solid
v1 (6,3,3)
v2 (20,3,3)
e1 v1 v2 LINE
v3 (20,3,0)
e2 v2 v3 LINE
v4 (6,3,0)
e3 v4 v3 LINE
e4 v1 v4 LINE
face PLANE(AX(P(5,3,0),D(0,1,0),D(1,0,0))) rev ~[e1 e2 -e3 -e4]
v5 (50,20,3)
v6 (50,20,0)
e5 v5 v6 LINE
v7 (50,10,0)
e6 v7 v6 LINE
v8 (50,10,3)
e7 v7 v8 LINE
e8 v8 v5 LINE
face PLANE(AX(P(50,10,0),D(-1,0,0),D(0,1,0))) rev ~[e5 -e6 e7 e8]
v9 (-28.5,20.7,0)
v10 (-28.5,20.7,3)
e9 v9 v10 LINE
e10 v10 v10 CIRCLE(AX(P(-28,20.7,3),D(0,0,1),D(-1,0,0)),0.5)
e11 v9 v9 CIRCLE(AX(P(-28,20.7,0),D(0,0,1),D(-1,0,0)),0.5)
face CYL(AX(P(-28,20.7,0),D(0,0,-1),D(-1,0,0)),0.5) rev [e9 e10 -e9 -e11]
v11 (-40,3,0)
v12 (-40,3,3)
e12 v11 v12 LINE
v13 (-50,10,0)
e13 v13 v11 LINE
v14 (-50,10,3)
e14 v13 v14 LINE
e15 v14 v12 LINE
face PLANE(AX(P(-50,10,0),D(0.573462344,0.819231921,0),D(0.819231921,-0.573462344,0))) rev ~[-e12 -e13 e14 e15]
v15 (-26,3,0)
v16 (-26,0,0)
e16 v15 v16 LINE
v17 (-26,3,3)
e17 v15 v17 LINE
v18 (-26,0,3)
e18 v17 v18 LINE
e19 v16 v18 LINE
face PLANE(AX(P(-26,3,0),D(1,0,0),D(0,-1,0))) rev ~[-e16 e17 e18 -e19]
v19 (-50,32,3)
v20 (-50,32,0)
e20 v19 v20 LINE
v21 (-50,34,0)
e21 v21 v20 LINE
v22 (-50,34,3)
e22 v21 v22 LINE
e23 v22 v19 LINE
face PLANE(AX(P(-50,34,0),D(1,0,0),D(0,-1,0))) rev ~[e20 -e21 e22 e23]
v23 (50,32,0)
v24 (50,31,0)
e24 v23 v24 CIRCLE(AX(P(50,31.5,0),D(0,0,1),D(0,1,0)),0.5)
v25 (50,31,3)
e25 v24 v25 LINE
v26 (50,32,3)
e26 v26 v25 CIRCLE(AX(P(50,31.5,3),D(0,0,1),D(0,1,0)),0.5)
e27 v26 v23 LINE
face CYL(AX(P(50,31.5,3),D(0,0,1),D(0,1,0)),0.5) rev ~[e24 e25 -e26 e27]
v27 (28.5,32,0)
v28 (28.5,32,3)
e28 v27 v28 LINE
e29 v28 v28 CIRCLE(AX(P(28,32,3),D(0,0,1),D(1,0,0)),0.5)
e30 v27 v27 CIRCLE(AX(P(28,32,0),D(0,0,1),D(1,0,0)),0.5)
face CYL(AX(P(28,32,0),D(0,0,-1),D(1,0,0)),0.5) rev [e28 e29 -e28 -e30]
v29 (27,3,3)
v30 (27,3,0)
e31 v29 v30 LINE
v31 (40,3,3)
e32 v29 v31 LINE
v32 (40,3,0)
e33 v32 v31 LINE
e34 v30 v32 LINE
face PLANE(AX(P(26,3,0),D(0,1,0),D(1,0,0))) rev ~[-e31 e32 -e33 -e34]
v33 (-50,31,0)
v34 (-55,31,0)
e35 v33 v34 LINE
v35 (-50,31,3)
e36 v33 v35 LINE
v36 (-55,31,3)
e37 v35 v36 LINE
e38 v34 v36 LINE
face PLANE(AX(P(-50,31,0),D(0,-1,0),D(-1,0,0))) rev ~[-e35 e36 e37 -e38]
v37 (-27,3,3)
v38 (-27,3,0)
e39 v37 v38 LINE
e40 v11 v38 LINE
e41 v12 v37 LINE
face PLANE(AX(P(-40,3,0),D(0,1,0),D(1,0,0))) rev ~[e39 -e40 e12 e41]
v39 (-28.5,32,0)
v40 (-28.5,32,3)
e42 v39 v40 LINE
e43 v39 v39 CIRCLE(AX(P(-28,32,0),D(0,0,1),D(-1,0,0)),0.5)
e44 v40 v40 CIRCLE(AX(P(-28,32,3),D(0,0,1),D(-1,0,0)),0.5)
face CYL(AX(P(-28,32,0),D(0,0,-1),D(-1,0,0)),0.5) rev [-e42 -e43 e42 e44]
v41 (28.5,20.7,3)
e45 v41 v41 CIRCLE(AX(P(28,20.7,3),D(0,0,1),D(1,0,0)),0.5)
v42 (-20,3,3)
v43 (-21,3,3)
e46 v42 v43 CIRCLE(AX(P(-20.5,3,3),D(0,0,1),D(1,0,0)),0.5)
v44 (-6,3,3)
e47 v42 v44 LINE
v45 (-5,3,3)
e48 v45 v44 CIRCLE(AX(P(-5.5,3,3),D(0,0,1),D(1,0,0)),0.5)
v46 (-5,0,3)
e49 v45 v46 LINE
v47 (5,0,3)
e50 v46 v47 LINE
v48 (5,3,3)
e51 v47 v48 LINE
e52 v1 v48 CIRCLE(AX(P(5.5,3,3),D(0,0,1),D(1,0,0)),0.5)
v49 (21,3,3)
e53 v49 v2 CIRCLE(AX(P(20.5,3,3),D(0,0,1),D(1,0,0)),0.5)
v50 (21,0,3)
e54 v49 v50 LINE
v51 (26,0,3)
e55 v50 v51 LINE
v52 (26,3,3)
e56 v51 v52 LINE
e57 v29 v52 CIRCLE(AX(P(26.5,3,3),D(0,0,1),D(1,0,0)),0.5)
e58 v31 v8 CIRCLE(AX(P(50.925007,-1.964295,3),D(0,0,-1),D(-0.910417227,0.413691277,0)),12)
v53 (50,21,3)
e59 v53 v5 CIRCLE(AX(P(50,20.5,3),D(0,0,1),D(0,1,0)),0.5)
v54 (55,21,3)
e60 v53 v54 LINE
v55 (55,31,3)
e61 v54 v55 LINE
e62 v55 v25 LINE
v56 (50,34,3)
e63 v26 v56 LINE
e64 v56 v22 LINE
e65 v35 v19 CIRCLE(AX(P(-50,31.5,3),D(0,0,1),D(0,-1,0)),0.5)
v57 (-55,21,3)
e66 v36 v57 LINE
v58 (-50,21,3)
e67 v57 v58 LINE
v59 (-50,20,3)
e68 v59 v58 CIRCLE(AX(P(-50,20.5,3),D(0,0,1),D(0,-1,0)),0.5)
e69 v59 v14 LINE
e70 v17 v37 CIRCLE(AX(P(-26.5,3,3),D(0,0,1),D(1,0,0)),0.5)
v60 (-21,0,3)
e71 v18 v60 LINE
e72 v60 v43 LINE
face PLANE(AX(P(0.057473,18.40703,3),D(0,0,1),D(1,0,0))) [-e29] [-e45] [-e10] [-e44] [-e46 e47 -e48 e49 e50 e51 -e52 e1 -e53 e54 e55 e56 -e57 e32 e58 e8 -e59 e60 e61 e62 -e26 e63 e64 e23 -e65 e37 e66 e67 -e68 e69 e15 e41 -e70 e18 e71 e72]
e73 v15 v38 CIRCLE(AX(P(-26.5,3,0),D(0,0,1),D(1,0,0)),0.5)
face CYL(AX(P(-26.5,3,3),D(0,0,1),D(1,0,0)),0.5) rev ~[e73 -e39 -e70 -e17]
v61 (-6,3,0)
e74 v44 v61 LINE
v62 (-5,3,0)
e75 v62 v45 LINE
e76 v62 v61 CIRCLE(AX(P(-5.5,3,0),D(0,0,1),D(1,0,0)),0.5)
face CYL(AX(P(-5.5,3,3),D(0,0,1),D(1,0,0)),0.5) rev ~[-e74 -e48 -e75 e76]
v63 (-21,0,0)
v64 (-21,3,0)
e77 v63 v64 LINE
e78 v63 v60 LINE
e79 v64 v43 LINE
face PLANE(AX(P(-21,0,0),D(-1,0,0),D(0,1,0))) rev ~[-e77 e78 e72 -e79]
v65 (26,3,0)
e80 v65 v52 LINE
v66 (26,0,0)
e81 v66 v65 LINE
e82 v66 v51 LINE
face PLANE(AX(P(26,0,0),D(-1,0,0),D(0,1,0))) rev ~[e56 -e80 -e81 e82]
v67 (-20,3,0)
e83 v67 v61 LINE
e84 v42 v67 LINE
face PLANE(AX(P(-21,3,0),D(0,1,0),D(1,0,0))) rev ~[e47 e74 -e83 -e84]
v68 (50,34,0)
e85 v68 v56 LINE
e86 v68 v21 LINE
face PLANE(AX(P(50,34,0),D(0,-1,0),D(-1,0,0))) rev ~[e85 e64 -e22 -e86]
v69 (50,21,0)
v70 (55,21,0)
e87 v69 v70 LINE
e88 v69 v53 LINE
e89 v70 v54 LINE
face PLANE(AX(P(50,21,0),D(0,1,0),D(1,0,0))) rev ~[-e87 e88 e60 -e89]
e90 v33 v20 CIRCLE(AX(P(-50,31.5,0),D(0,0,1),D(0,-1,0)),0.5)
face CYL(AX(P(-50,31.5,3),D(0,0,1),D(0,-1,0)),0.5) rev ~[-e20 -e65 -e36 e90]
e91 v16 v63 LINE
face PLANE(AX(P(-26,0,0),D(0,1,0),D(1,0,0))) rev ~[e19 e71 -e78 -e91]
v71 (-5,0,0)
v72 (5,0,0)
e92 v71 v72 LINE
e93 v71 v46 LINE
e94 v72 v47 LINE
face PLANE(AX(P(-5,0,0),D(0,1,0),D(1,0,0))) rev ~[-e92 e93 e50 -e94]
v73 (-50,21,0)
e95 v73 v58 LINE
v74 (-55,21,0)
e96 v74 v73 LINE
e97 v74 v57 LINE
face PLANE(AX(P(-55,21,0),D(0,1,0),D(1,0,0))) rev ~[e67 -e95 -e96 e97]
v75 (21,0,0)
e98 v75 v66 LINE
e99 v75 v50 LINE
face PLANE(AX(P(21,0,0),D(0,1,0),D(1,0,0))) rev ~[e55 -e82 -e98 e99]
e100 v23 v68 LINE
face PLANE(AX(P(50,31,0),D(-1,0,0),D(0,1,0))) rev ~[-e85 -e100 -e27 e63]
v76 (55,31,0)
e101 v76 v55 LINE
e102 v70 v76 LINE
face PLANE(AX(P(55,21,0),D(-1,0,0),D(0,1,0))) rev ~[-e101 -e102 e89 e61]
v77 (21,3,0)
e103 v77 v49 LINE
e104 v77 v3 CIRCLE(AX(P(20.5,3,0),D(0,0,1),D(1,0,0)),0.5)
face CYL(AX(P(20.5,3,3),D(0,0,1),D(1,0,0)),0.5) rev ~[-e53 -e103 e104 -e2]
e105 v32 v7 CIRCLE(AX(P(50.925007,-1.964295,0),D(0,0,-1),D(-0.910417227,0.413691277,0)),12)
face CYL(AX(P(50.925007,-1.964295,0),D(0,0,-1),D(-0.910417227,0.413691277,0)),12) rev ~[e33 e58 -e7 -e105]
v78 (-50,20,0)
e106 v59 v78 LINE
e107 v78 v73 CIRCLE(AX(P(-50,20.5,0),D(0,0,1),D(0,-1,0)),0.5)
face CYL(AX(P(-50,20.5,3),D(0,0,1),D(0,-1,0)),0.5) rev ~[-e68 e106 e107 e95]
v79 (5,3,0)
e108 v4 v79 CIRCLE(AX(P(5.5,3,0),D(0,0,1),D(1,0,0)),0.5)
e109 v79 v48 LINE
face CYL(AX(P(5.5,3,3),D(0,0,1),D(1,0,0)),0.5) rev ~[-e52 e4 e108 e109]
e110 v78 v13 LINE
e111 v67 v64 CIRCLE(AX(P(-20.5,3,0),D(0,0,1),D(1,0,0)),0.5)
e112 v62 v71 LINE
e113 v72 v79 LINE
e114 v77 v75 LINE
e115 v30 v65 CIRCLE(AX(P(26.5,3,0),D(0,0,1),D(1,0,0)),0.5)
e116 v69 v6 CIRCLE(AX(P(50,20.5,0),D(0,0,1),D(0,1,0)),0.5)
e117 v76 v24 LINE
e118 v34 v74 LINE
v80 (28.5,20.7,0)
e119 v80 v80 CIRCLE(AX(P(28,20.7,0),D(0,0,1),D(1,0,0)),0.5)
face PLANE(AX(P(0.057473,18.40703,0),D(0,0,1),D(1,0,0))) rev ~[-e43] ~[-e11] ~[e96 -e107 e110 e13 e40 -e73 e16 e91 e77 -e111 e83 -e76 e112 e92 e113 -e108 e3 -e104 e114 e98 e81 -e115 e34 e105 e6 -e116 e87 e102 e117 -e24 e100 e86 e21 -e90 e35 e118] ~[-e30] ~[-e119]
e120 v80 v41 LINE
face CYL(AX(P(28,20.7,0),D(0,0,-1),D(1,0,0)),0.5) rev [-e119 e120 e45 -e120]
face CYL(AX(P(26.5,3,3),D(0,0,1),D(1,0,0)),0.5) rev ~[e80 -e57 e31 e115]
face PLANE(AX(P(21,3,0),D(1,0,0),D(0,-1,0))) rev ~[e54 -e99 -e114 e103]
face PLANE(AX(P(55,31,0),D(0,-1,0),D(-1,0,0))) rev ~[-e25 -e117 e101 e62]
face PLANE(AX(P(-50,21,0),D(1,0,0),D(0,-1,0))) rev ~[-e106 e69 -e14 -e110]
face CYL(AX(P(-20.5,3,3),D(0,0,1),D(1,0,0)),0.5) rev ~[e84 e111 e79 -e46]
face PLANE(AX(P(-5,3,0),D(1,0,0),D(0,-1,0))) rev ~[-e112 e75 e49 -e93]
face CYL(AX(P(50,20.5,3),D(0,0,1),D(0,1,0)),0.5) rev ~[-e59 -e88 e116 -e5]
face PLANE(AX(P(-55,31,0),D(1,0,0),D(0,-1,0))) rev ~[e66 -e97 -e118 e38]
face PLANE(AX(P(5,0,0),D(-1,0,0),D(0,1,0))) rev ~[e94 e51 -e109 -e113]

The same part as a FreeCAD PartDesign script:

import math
import FreeCAD as App
import Part
import Sketcher

V = App.Vector

doc = App.newDocument("Part")
body = doc.addObject("PartDesign::Body", "Body")

# Sketch on XY plane
sketch1 = body.newObject("Sketcher::SketchObject", "Sketch")
sketch1.AttachmentSupport = (doc.getObject("XY_Plane"), [""])
sketch1.MapMode = "FlatFace"
sketch1.addGeometry([
    Part.LineSegment(V(-5, 0, 0), V(5, 0, 0)),  # 0
    Part.LineSegment(V(5, 0, 0), V(5, 3, 0)),  # 1
    Part.LineSegment(V(5, 3, 0), V(21, 3, 0)),  # 2
    Part.LineSegment(V(21, 3, 0), V(21, 0, 0)),  # 3
    Part.LineSegment(V(21, 0, 0), V(26, 0, 0)),  # 4
    Part.LineSegment(V(26, 0, 0), V(26, 3, 0)),  # 5
    Part.LineSegment(V(26, 3, 0), V(40, 3, 0)),  # 6
    Part.ArcOfCircle(Part.Circle(V(50.9, -2, 0), V(0, 0, 1), 12), math.radians(94), math.radians(156)),  # 7
    Part.LineSegment(V(50, 10, 0), V(50, 21, 0)),  # 8
    Part.LineSegment(V(50, 21, 0), V(55, 21, 0)),  # 9
    Part.LineSegment(V(55, 21, 0), V(55, 31, 0)),  # 10
    Part.LineSegment(V(55, 31, 0), V(50, 31, 0)),  # 11
    Part.LineSegment(V(50, 31, 0), V(50, 34, 0)),  # 12
    Part.LineSegment(V(50, 34, 0), V(-50, 34, 0)),  # 13
    Part.LineSegment(V(-50, 34, 0), V(-50, 31, 0)),  # 14
    Part.LineSegment(V(-50, 31, 0), V(-55, 31, 0)),  # 15
    Part.LineSegment(V(-55, 31, 0), V(-55, 21, 0)),  # 16
    Part.LineSegment(V(-55, 21, 0), V(-50, 21, 0)),  # 17
    Part.LineSegment(V(-50, 21, 0), V(-50, 10, 0)),  # 18
    Part.LineSegment(V(-50, 10, 0), V(-40, 3, 0)),  # 19
    Part.LineSegment(V(-40, 3, 0), V(-26, 3, 0)),  # 20
    Part.LineSegment(V(-26, 3, 0), V(-26, 0, 0)),  # 21
    Part.LineSegment(V(-26, 0, 0), V(-21, 0, 0)),  # 22
    Part.LineSegment(V(-21, 0, 0), V(-21, 3, 0)),  # 23
    Part.LineSegment(V(-21, 3, 0), V(-5, 3, 0)),  # 24
    Part.LineSegment(V(-5, 3, 0), V(-5, 0, 0)),  # 25
    Part.Circle(V(-28, 20.7, 0), V(0, 0, 1), 0.5),  # 26
    Part.Circle(V(28, 20.7, 0), V(0, 0, 1), 0.5),  # 27
    Part.Circle(V(-28, 32, 0), V(0, 0, 1), 0.5),  # 28
    Part.Circle(V(28, 32, 0), V(0, 0, 1), 0.5),  # 29
], False)
sketch1.addConstraint([
    Sketcher.Constraint("Coincident", 0, 2, 1, 1),
    Sketcher.Constraint("Coincident", 1, 2, 2, 1),
    Sketcher.Constraint("Coincident", 2, 2, 3, 1),
    Sketcher.Constraint("Coincident", 3, 2, 4, 1),
    Sketcher.Constraint("Coincident", 4, 2, 5, 1),
    Sketcher.Constraint("Coincident", 5, 2, 6, 1),
    Sketcher.Constraint("Coincident", 6, 2, 7, 2),
    Sketcher.Constraint("Coincident", 7, 1, 8, 1),
    Sketcher.Constraint("Coincident", 8, 2, 9, 1),
    Sketcher.Constraint("Coincident", 9, 2, 10, 1),
    Sketcher.Constraint("Coincident", 10, 2, 11, 1),
    Sketcher.Constraint("Coincident", 11, 2, 12, 1),
    Sketcher.Constraint("Coincident", 12, 2, 13, 1),
    Sketcher.Constraint("Coincident", 13, 2, 14, 1),
    Sketcher.Constraint("Coincident", 14, 2, 15, 1),
    Sketcher.Constraint("Coincident", 15, 2, 16, 1),
    Sketcher.Constraint("Coincident", 16, 2, 17, 1),
    Sketcher.Constraint("Coincident", 17, 2, 18, 1),
    Sketcher.Constraint("Coincident", 18, 2, 19, 1),
    Sketcher.Constraint("Coincident", 19, 2, 20, 1),
    Sketcher.Constraint("Coincident", 20, 2, 21, 1),
    Sketcher.Constraint("Coincident", 21, 2, 22, 1),
    Sketcher.Constraint("Coincident", 22, 2, 23, 1),
    Sketcher.Constraint("Coincident", 23, 2, 24, 1),
    Sketcher.Constraint("Coincident", 24, 2, 25, 1),
    Sketcher.Constraint("Coincident", 25, 2, 0, 1),
    Sketcher.Constraint("Horizontal", 0),
    Sketcher.Constraint("Vertical", 1),
    Sketcher.Constraint("Horizontal", 2),
    Sketcher.Constraint("Vertical", 3),
    Sketcher.Constraint("Horizontal", 4),
    Sketcher.Constraint("Vertical", 5),
    Sketcher.Constraint("Horizontal", 6),
    Sketcher.Constraint("Vertical", 8),
    Sketcher.Constraint("Horizontal", 9),
    Sketcher.Constraint("Vertical", 10),
    Sketcher.Constraint("Horizontal", 11),
    Sketcher.Constraint("Vertical", 12),
    Sketcher.Constraint("Horizontal", 13),
    Sketcher.Constraint("Vertical", 14),
    Sketcher.Constraint("Horizontal", 15),
    Sketcher.Constraint("Vertical", 16),
    Sketcher.Constraint("Horizontal", 17),
    Sketcher.Constraint("Vertical", 18),
    Sketcher.Constraint("Horizontal", 20),
    Sketcher.Constraint("Vertical", 21),
    Sketcher.Constraint("Horizontal", 22),
    Sketcher.Constraint("Vertical", 23),
    Sketcher.Constraint("Horizontal", 24),
    Sketcher.Constraint("Vertical", 25),
    Sketcher.Constraint("Equal", 26, 27),
    Sketcher.Constraint("Equal", 27, 28),
    Sketcher.Constraint("Equal", 28, 29),
    Sketcher.Constraint("Symmetric", 4, 2, 21, 2, -1, 1),
    Sketcher.Constraint("Symmetric", 0, 2, 25, 2, -1, 1),
    Sketcher.Constraint("Symmetric", 26, 3, 27, 3, -2),
    Sketcher.Constraint("Symmetric", 28, 3, 29, 3, -2),
    Sketcher.Constraint("Symmetric", 11, 2, 14, 2, -2),
    Sketcher.Constraint("Symmetric", 9, 2, 16, 2, -2),
    Sketcher.Constraint("Symmetric", 7, 1, 18, 2, -2),
    Sketcher.Constraint("Symmetric", 6, 2, 19, 2, -2),
    Sketcher.Constraint("Symmetric", 3, 2, 22, 2, -2),
    Sketcher.Constraint("Horizontal", 2, 2, 5, 2),
    Sketcher.Constraint("Horizontal", 20, 2, 23, 2),
    Sketcher.Constraint("Vertical", 26, 3, 28, 3),
    Sketcher.Constraint("Vertical", 8, 2, 11, 2),
    Sketcher.Constraint("Equal", 4, 9),
    Sketcher.Constraint("Equal", 0, 10),
    Sketcher.Constraint("Equal", 5, 12),
    Sketcher.Constraint("Diameter", 26, 1.0),
    Sketcher.Constraint("Radius", 7, 12.0),
    Sketcher.Constraint("DistanceX", 0, 1, 0, 2, 10.0),
    Sketcher.Constraint("DistanceX", 2, 1, 2, 2, 16.0),
    Sketcher.Constraint("DistanceX", 4, 1, 4, 2, 5.0),
    Sketcher.Constraint("DistanceX", 6, 1, 6, 2, 14.0),
    Sketcher.Constraint("DistanceX", 13, 2, 13, 1, 100.0),
    Sketcher.Constraint("DistanceY", 1, 1, 1, 2, 3.0),
    Sketcher.Constraint("DistanceY", 8, 1, 8, 2, 11.0),
    Sketcher.Constraint("DistanceX", 26, 3, -1, 1, 28.0),
    Sketcher.Constraint("DistanceY", -1, 1, 28, 3, 32.0),
    Sketcher.Constraint("DistanceY", -1, 1, 7, 1, 10.0),
    Sketcher.Constraint("DistanceY", -1, 1, 26, 3, 20.7),
])
pad1 = body.newObject("PartDesign::Pad", "Pad")
pad1.Profile = sketch1
pad1.Length = 3

# Sketch on XY plane
sketch2 = body.newObject("Sketcher::SketchObject", "Sketch001")
sketch2.AttachmentSupport = (doc.getObject("XY_Plane"), [""])
sketch2.MapMode = "FlatFace"
sketch2.AttachmentOffset = App.Placement(V(0, 0, 3), App.Rotation())
sketch2.addGeometry([
    Part.LineSegment(V(-50, 32, 0), V(-50, 31, 0)),  # 0
    Part.ArcOfCircle(Part.Circle(V(-50, 31.5, 0), V(0, 0, 1), 0.5), math.radians(-90), math.radians(90)),  # 1
    Part.ArcOfCircle(Part.Circle(V(-50, 20.5, 0), V(0, 0, 1), 0.5), math.radians(-90), math.radians(90)),  # 2
    Part.LineSegment(V(-50, 21, 0), V(-50, 20, 0)),  # 3
    Part.LineSegment(V(-27, 3, 0), V(-26, 3, 0)),  # 4
    Part.ArcOfCircle(Part.Circle(V(-26.5, 3, 0), V(0, 0, 1), 0.5), math.radians(0), math.radians(180)),  # 5
    Part.ArcOfCircle(Part.Circle(V(-20.5, 3, 0), V(0, 0, 1), 0.5), math.radians(0), math.radians(180)),  # 6
    Part.LineSegment(V(-21, 3, 0), V(-20, 3, 0)),  # 7
    Part.ArcOfCircle(Part.Circle(V(-5.5, 3, 0), V(0, 0, 1), 0.5), math.radians(0), math.radians(180)),  # 8
    Part.LineSegment(V(-6, 3, 0), V(-5, 3, 0)),  # 9
    Part.ArcOfCircle(Part.Circle(V(5.5, 3, 0), V(0, 0, 1), 0.5), math.radians(0), math.radians(180)),  # 10
    Part.LineSegment(V(5, 3, 0), V(6, 3, 0)),  # 11
    Part.ArcOfCircle(Part.Circle(V(20.5, 3, 0), V(0, 0, 1), 0.5), math.radians(0), math.radians(180)),  # 12
    Part.LineSegment(V(20, 3, 0), V(21, 3, 0)),  # 13
    Part.ArcOfCircle(Part.Circle(V(26.5, 3, 0), V(0, 0, 1), 0.5), math.radians(0), math.radians(180)),  # 14
    Part.LineSegment(V(26, 3, 0), V(27, 3, 0)),  # 15
    Part.LineSegment(V(50, 20, 0), V(50, 21, 0)),  # 16
    Part.ArcOfCircle(Part.Circle(V(50, 20.5, 0), V(0, 0, 1), 0.5), math.radians(90), math.radians(270)),  # 17
    Part.ArcOfCircle(Part.Circle(V(50, 31.5, 0), V(0, 0, 1), 0.5), math.radians(90), math.radians(270)),  # 18
    Part.LineSegment(V(50, 31, 0), V(50, 32, 0)),  # 19
], False)
sketch2.addConstraint([
    Sketcher.Constraint("Coincident", 0, 1, 1, 2),
    Sketcher.Constraint("Coincident", 1, 1, 0, 2),
    Sketcher.Constraint("Coincident", 2, 1, 3, 2),
    Sketcher.Constraint("Coincident", 3, 1, 2, 2),
    Sketcher.Constraint("Coincident", 4, 1, 5, 2),
    Sketcher.Constraint("Coincident", 5, 1, 4, 2),
    Sketcher.Constraint("Coincident", 6, 1, 7, 2),
    Sketcher.Constraint("Coincident", 7, 1, 6, 2),
    Sketcher.Constraint("Coincident", 8, 1, 9, 2),
    Sketcher.Constraint("Coincident", 9, 1, 8, 2),
    Sketcher.Constraint("Coincident", 10, 1, 11, 2),
    Sketcher.Constraint("Coincident", 11, 1, 10, 2),
    Sketcher.Constraint("Coincident", 12, 1, 13, 2),
    Sketcher.Constraint("Coincident", 13, 1, 12, 2),
    Sketcher.Constraint("Coincident", 14, 1, 15, 2),
    Sketcher.Constraint("Coincident", 15, 1, 14, 2),
    Sketcher.Constraint("Coincident", 16, 1, 17, 2),
    Sketcher.Constraint("Coincident", 17, 1, 16, 2),
    Sketcher.Constraint("Coincident", 18, 1, 19, 2),
    Sketcher.Constraint("Coincident", 19, 1, 18, 2),
    Sketcher.Constraint("Vertical", 0),
    Sketcher.Constraint("Vertical", 3),
    Sketcher.Constraint("Horizontal", 4),
    Sketcher.Constraint("Horizontal", 7),
    Sketcher.Constraint("Horizontal", 9),
    Sketcher.Constraint("Horizontal", 11),
    Sketcher.Constraint("Horizontal", 13),
    Sketcher.Constraint("Horizontal", 15),
    Sketcher.Constraint("Vertical", 16),
    Sketcher.Constraint("Vertical", 19),
    Sketcher.Constraint("Equal", 1, 2),
    Sketcher.Constraint("Equal", 2, 5),
    Sketcher.Constraint("Equal", 5, 6),
    Sketcher.Constraint("Equal", 6, 8),
    Sketcher.Constraint("Equal", 8, 10),
    Sketcher.Constraint("Equal", 10, 12),
    Sketcher.Constraint("Equal", 12, 14),
    Sketcher.Constraint("Equal", 14, 17),
    Sketcher.Constraint("Equal", 17, 18),
    Sketcher.Constraint("Symmetric", 8, 3, 10, 3, -2),
    Sketcher.Constraint("Symmetric", 6, 3, 12, 3, -2),
    Sketcher.Constraint("Symmetric", 5, 3, 14, 3, -2),
    Sketcher.Constraint("Symmetric", 2, 3, 17, 3, -2),
    Sketcher.Constraint("Symmetric", 1, 3, 18, 3, -2),
    Sketcher.Constraint("Horizontal", 5, 3, 6, 3),
    Sketcher.Constraint("Horizontal", 6, 3, 8, 3),
    Sketcher.Constraint("Horizontal", 14, 3, 4, 1),
    Sketcher.Constraint("Horizontal", 5, 1, 6, 1),
    Sketcher.Constraint("Horizontal", 7, 1, 8, 1),
    Sketcher.Constraint("Horizontal", 9, 1, 10, 1),
    Sketcher.Constraint("Horizontal", 11, 1, 12, 1),
    Sketcher.Constraint("Horizontal", 13, 1, 14, 1),
    Sketcher.Constraint("Vertical", 1, 3, 2, 3),
    Sketcher.Constraint("Vertical", 2, 3, 0, 1),
    Sketcher.Constraint("Vertical", 1, 1, 2, 1),
    Sketcher.Constraint("Vertical", 18, 3, 16, 1),
    Sketcher.Constraint("Vertical", 17, 1, 18, 1),
    Sketcher.Constraint("Radius", 1, 0.5),
    Sketcher.Constraint("DistanceX", 1, 3, -1, 1, 50.0),
    Sketcher.Constraint("DistanceY", -1, 1, 5, 3, 3.0),
    Sketcher.Constraint("DistanceY", -1, 1, 0, 1, 32.0),
    Sketcher.Constraint("DistanceY", -1, 1, 2, 1, 20.0),
    Sketcher.Constraint("DistanceX", 4, 1, -1, 1, 27.0),
    Sketcher.Constraint("DistanceX", 6, 1, -1, 1, 20.0),
    Sketcher.Constraint("DistanceX", 8, 1, -1, 1, 5.0),
])
pocket1 = body.newObject("PartDesign::Pocket", "Pocket")
pocket1.Profile = sketch2
pocket1.Type = "ThroughAll"

doc.recompute()
